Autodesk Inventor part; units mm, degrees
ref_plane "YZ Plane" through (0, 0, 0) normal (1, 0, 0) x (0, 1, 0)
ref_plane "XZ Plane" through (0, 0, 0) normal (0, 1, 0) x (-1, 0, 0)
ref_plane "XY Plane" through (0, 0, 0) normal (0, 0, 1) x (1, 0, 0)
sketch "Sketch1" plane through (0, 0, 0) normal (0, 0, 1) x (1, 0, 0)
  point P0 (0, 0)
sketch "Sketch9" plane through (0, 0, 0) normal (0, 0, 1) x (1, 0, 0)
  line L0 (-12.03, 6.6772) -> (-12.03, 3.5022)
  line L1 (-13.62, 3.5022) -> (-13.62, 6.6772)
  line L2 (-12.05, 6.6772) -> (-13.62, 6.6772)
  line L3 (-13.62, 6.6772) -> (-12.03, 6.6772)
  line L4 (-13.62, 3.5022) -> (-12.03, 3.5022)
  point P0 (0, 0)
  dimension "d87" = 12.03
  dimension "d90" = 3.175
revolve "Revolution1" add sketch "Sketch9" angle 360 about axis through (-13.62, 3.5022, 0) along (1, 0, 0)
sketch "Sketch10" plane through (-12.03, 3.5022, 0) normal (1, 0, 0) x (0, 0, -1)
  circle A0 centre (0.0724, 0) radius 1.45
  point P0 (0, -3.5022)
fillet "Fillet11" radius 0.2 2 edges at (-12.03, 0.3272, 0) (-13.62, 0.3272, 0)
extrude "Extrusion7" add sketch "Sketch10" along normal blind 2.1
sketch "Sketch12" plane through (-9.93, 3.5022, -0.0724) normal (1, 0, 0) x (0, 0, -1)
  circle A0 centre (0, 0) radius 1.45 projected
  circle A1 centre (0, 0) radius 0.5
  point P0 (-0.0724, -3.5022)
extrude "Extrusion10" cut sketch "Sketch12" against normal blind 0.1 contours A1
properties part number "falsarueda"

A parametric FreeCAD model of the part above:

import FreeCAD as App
import Part
import Sketcher
from FreeCAD import Vector


def edges_at(feature, points):
    """Names of the edges that pass closest to the given points."""
    edges = feature.Shape.Edges
    near = lambda p: min(range(len(edges)), key=lambda i: edges[i].distToShape(Part.Vertex(*p))[0])
    return sorted({f"Edge{near(p) + 1}" for p in points})


def add_polygon(sketch, points):
    """Adds a closed chain of lines whose ends are joined by coincident constraints."""
    first, n = sketch.GeometryCount, len(points)
    for a, b in zip(points, points[1:] + points[:1]):
        sketch.addGeometry(Part.LineSegment(App.Vector(*a, 0), App.Vector(*b, 0)), False)
    for i in range(n):
        sketch.addConstraint(Sketcher.Constraint("Coincident", first + i, 2, first + (i + 1) % n, 1))

doc = App.newDocument("Part")
body = doc.addObject("PartDesign::Body", "Body")

# Sketch on XY plane
sketch1 = doc.addObject("Sketcher::SketchObject", "Sketch")
body.addObject(sketch1)
sketch1.AttachmentSupport = (doc.XY_Plane, [""])
sketch1.MapMode = "FlatFace"
add_polygon(sketch1, [(-12, 3.5), (-12, 6.7), (-13.6, 6.7), (-13.6, 3.5)])  # lines 0-3
sketch1.addGeometry(Part.LineSegment(Vector(-13.6, 3.5, 0), Vector(-12, 3.5, 0)), True)  # axis
sketch1.addConstraint(Sketcher.Constraint("Vertical", 0))
sketch1.addConstraint(Sketcher.Constraint("Horizontal", 1))
sketch1.addConstraint(Sketcher.Constraint("Vertical", 2))
sketch1.addConstraint(Sketcher.Constraint("Horizontal", 3))
sketch1.addConstraint(Sketcher.Constraint("Horizontal", 4))
sketch1.addConstraint(Sketcher.Constraint("Coincident", 4, 1, 2, 2))
sketch1.addConstraint(Sketcher.Constraint("Vertical", 0, 2, 4, 2))
sketch1.addConstraint(Sketcher.Constraint("DistanceY", 0, 1, 0, 2, 3.175))
sketch1.addConstraint(Sketcher.Constraint("DistanceX", 0, 2, -1, 1, 12.03))
sketch1.addConstraint(Sketcher.Constraint("DistanceX", 1, 2, 1, 1, 1.59))
sketch1.addConstraint(Sketcher.Constraint("DistanceY", -1, 1, 0, 2, 6.6772))
revolution = doc.addObject("PartDesign::Revolution", "Revolution")
body.addObject(revolution)
revolution.Profile = sketch1
revolution.ReferenceAxis = (sketch1, ["Axis0"])
revolution.Angle = 360
doc.recompute()

fillet = doc.addObject("PartDesign::Fillet", "Fillet")
body.addObject(fillet)
fillet.Base = (revolution, edges_at(revolution, [(-12.03, 0.327, 0), (-13.62, 0.327, 0)]))
fillet.Radius = 0.2

# Sketch on YZ plane
sketch2 = doc.addObject("Sketcher::SketchObject", "Sketch001")
body.addObject(sketch2)
sketch2.AttachmentSupport = (doc.YZ_Plane, [""])
sketch2.MapMode = "FlatFace"
sketch2.AttachmentOffset = App.Placement(Vector(0, 0, -12.03), App.Rotation())
sketch2.addGeometry(Part.Circle(Vector(3.5, -0.1, 0), Vector(0, 0, 1), 1.4), False)
sketch2.addConstraint(Sketcher.Constraint("Diameter", 0, 2.9))
sketch2.addConstraint(Sketcher.Constraint("DistanceX", -1, 1, 0, 3, 3.5022))
sketch2.addConstraint(Sketcher.Constraint("DistanceY", 0, 3, -1, 1, 0.0724))
pad1 = doc.addObject("PartDesign::Pad", "Pad")
body.addObject(pad1)
pad1.Profile = sketch2
pad1.Length = 2.1

# Sketch on YZ plane
sketch3 = doc.addObject("Sketcher::SketchObject", "Sketch002")
body.addObject(sketch3)
sketch3.AttachmentSupport = (doc.YZ_Plane, [""])
sketch3.MapMode = "FlatFace"
sketch3.AttachmentOffset = App.Placement(Vector(0, 0, -9.93), App.Rotation())
sketch3.addGeometry(Part.Circle(Vector(3.5, -0.1, 0), Vector(0, 0, 1), 0.5), False)
sketch3.addConstraint(Sketcher.Constraint("Diameter", 0, 1.0))
sketch3.addConstraint(Sketcher.Constraint("DistanceX", -1, 1, 0, 3, 3.5022))
sketch3.addConstraint(Sketcher.Constraint("DistanceY", 0, 3, -1, 1, 0.0724))
pocket1 = doc.addObject("PartDesign::Pocket", "Pocket")
body.addObject(pocket1)
pocket1.Profile = sketch3
pocket1.Length = 0.1

doc.recompute()
